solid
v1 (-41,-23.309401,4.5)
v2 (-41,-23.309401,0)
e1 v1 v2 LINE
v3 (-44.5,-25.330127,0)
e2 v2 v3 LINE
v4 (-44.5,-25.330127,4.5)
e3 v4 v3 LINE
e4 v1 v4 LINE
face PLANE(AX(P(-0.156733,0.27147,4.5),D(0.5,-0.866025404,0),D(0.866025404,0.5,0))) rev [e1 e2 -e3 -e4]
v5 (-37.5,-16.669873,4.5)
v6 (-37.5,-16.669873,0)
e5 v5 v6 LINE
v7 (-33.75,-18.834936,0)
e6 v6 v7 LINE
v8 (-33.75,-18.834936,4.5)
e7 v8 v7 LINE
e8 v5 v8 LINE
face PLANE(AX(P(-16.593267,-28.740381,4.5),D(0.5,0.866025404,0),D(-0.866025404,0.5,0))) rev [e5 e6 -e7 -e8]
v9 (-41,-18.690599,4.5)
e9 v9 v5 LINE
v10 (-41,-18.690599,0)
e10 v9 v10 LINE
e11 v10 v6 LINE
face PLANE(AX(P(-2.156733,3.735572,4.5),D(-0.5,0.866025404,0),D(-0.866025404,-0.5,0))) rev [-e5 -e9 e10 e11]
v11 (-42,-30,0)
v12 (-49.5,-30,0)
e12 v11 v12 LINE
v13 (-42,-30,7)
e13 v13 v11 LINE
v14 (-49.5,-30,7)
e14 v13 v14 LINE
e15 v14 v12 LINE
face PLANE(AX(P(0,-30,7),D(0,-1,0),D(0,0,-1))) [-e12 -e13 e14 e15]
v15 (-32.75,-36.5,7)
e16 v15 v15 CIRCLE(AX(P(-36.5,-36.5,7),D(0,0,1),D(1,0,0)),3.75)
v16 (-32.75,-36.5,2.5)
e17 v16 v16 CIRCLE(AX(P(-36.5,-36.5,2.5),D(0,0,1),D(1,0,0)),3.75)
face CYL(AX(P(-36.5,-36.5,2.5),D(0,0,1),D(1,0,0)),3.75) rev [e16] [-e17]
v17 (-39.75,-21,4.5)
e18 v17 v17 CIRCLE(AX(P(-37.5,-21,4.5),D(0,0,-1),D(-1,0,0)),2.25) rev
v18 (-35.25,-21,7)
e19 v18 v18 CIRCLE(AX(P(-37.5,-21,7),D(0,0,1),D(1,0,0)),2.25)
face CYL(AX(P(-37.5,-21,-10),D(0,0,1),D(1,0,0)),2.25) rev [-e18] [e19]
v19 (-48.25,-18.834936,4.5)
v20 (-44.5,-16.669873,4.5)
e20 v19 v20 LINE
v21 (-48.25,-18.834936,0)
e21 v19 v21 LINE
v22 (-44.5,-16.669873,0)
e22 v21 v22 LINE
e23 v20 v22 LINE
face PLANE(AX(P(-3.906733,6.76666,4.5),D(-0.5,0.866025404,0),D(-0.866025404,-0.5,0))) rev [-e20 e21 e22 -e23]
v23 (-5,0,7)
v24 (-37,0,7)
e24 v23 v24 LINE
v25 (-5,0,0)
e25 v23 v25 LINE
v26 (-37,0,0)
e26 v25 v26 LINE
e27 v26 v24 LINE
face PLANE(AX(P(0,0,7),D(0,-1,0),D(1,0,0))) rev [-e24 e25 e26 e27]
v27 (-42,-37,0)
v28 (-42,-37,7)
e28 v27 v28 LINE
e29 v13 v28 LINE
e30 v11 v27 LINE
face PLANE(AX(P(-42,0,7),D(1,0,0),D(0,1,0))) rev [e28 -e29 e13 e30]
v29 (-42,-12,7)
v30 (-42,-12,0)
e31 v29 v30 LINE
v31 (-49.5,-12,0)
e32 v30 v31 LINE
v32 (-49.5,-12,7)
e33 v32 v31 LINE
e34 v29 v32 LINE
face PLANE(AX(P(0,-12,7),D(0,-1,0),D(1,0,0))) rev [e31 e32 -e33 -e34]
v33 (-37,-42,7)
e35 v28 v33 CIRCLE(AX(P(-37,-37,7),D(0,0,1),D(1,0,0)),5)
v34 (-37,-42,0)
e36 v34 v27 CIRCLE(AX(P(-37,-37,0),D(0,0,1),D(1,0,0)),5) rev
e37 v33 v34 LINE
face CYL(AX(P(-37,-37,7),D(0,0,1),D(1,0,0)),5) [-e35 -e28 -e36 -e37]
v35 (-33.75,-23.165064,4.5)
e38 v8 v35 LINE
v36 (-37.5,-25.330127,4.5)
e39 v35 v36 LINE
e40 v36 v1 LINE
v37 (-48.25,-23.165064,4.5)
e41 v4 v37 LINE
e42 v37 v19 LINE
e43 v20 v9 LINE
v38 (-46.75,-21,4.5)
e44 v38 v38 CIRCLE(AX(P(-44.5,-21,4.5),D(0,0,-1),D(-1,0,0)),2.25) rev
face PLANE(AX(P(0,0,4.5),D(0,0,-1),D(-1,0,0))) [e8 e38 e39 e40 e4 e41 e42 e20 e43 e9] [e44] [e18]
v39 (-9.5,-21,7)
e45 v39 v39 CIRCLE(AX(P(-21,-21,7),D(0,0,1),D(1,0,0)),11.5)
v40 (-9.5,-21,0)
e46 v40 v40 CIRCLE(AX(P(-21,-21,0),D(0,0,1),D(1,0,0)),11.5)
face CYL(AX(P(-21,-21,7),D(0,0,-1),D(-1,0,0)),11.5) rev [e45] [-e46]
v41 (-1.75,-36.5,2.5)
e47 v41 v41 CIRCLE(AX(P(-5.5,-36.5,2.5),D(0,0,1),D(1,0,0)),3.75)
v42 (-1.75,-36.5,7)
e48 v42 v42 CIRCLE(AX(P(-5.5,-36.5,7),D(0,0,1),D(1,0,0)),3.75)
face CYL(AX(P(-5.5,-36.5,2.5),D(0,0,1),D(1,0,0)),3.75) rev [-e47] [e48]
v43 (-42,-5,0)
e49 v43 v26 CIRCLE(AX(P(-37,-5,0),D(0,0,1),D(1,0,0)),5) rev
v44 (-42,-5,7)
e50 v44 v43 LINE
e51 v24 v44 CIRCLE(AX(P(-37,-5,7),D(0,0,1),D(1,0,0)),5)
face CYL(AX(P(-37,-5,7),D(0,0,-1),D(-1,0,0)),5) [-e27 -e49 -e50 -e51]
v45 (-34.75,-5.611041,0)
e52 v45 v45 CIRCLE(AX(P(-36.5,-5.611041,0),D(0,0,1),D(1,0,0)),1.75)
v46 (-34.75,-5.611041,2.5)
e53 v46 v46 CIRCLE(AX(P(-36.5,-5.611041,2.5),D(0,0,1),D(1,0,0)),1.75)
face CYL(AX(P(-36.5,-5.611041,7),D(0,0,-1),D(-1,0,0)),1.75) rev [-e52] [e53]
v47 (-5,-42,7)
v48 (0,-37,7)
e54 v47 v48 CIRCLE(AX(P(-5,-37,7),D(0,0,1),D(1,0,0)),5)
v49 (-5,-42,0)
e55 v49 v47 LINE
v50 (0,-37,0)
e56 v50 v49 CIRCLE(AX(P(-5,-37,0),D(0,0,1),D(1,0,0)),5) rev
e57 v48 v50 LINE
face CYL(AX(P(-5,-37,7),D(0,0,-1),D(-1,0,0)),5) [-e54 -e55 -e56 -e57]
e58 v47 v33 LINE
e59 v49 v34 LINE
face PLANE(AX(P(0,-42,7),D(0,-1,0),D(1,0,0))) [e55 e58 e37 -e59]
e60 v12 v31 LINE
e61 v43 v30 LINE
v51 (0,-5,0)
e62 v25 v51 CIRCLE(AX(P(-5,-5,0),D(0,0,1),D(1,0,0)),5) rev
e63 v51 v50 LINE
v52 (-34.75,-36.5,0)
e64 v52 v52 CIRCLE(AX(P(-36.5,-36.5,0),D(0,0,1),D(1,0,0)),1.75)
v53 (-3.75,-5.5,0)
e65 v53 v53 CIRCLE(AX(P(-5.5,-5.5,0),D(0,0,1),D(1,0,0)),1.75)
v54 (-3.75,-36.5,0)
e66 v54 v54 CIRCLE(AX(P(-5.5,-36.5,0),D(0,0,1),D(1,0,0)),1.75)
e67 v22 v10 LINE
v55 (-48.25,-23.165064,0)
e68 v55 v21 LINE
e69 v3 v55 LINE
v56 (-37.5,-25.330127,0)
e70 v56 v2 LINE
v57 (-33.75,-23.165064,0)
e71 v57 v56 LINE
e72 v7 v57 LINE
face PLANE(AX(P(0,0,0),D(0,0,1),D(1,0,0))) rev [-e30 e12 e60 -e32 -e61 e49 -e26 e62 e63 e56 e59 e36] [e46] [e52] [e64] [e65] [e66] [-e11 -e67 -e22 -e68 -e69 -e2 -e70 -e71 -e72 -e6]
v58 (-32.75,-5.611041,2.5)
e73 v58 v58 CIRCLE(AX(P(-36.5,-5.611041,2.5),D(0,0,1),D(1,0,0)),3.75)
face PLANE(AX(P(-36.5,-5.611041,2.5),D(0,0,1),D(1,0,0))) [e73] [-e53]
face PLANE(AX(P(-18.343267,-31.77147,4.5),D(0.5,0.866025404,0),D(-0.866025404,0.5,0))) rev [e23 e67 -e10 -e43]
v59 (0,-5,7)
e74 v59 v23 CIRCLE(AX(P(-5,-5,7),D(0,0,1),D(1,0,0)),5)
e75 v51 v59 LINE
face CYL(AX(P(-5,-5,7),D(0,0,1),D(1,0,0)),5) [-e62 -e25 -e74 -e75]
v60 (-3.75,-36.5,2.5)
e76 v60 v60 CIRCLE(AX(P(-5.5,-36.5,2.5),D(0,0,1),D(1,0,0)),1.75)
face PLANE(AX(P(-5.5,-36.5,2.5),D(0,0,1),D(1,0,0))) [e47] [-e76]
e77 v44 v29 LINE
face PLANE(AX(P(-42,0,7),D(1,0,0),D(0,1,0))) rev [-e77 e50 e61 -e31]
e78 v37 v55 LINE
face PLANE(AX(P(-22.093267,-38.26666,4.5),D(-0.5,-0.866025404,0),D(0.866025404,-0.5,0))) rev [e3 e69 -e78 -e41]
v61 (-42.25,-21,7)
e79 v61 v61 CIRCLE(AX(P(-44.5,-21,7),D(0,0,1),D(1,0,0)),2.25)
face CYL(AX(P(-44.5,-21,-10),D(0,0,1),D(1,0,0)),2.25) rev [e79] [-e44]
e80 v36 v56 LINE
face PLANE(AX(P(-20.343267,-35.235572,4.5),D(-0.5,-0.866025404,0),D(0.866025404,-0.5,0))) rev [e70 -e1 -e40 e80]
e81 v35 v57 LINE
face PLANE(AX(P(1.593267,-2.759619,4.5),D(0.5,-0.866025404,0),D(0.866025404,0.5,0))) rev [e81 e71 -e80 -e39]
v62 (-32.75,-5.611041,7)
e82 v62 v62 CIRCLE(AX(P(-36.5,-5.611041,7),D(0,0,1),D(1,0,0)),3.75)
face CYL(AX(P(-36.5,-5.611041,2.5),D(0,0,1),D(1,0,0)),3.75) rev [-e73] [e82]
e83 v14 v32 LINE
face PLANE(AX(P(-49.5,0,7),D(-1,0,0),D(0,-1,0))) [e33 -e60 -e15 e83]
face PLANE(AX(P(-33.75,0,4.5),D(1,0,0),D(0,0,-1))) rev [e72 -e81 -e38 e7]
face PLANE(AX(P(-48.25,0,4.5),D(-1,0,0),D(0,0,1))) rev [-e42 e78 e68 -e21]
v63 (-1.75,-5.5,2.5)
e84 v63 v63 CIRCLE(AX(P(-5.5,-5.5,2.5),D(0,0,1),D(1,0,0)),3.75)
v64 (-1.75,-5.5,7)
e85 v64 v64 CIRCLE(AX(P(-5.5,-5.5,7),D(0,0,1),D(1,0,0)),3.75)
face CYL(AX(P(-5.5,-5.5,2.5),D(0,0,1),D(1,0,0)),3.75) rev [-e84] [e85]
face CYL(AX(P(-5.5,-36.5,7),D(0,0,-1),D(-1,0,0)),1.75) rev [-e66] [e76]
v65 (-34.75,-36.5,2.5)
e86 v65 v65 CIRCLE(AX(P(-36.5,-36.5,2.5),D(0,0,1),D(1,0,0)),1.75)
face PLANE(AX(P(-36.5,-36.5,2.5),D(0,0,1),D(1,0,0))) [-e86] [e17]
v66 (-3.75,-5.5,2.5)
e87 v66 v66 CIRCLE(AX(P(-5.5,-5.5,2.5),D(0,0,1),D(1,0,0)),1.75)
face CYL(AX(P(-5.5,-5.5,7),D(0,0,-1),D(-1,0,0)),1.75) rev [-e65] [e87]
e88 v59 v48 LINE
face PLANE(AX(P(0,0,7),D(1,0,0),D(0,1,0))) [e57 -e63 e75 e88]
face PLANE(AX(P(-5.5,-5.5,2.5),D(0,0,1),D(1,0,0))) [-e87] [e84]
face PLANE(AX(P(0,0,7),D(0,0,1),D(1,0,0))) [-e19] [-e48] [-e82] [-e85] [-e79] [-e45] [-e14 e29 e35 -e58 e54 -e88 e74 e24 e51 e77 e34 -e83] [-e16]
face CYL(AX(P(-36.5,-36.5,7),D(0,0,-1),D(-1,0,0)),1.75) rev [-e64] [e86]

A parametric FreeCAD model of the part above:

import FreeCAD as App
import Part
import Sketcher

V = App.Vector
Q = App.Units.Quantity


def edges_at(feature, points):
    """Names of the edges that pass closest to the given points."""
    edges = feature.Shape.Edges
    near = lambda p: min(range(len(edges)), key=lambda i: edges[i].distToShape(Part.Vertex(*p))[0])
    return sorted({f"Edge{near(p) + 1}" for p in points})

doc = App.newDocument("Part")
body = doc.addObject("PartDesign::Body", "Body")

# Sketch on XY plane
sketch1 = body.newObject("Sketcher::SketchObject", "Sketch")
sketch1.AttachmentSupport = (doc.getObject("XY_Plane"), [""])
sketch1.MapMode = "FlatFace"
sketch1.addGeometry(Part.LineSegment(V(-42, -30, 0), V(-42, -42, 0)), False)
sketch1.addGeometry(Part.LineSegment(V(-42, -42, 0), V(0, -42, 0)), False)
sketch1.addGeometry(Part.LineSegment(V(0, -42, 0), V(0, 0, 0)), False)
sketch1.addGeometry(Part.LineSegment(V(0, 0, 0), V(-42, 0, 0)), False)
sketch1.addGeometry(Part.LineSegment(V(-42, 0, 0), V(-42, -12, 0)), False)
sketch1.addGeometry(Part.LineSegment(V(-42, -12, 0), V(-49.5, -12, 0)), False)
sketch1.addGeometry(Part.LineSegment(V(-49.5, -12, 0), V(-49.5, -30, 0)), False)
sketch1.addGeometry(Part.LineSegment(V(-49.5, -30, 0), V(-42, -30, 0)), False)
sketch1.addGeometry(Part.Circle(V(-36.5, -36.5, 0), V(0, 0, 1), 1.75), False)
sketch1.addGeometry(Part.Circle(V(-5.5, -36.5, 0), V(0, 0, 1), 1.75), False)
sketch1.addGeometry(Part.Circle(V(-36.5, -5.611041, 0), V(0, 0, 1), 1.75), False)
sketch1.addGeometry(Part.Circle(V(-21, -21, 0), V(0, 0, 1), 11.5), False)
sketch1.addGeometry(Part.Circle(V(-5.5, -5.5, 0), V(0, 0, 1), 1.75), False)
sketch1.addConstraint(Sketcher.Constraint("Coincident", 0, 2, 1, 1))
sketch1.addConstraint(Sketcher.Constraint("Coincident", 1, 2, 2, 1))
sketch1.addConstraint(Sketcher.Constraint("Coincident", 2, 2, 3, 1))
sketch1.addConstraint(Sketcher.Constraint("Coincident", 3, 2, 4, 1))
sketch1.addConstraint(Sketcher.Constraint("Coincident", 4, 2, 5, 1))
sketch1.addConstraint(Sketcher.Constraint("Coincident", 5, 2, 6, 1))
sketch1.addConstraint(Sketcher.Constraint("Coincident", 6, 2, 7, 1))
sketch1.addConstraint(Sketcher.Constraint("Coincident", 7, 2, 0, 1))
sketch1.addConstraint(Sketcher.Constraint("Vertical", 0))
sketch1.addConstraint(Sketcher.Constraint("Horizontal", 1))
sketch1.addConstraint(Sketcher.Constraint("Vertical", 2))
sketch1.addConstraint(Sketcher.Constraint("Horizontal", 3))
sketch1.addConstraint(Sketcher.Constraint("Vertical", 4))
sketch1.addConstraint(Sketcher.Constraint("Horizontal", 5))
sketch1.addConstraint(Sketcher.Constraint("Vertical", 6))
sketch1.addConstraint(Sketcher.Constraint("Horizontal", 7))
sketch1.addConstraint(Sketcher.Constraint("Coincident", 2, 2, -1, 1))
sketch1.addConstraint(Sketcher.Constraint("Equal", 8, 9))
sketch1.addConstraint(Sketcher.Constraint("Equal", 9, 10))
sketch1.addConstraint(Sketcher.Constraint("Equal", 10, 12))
sketch1.addConstraint(Sketcher.Constraint("Horizontal", 8, 3, 9, 3))
sketch1.addConstraint(Sketcher.Constraint("Vertical", 8, 3, 10, 3))
sketch1.addConstraint(Sketcher.Constraint("Vertical", 9, 3, 12, 3))
sketch1.addConstraint(Sketcher.Constraint("Vertical", 0, 2, 3, 2))
sketch1.addConstraint(Sketcher.Constraint("Equal", 3, 2))
sketch1.addConstraint(Sketcher.Constraint("Equal", 0, 4))
sketch1.addConstraint(Sketcher.Constraint("Diameter", 11, Q("23 mm")))
sketch1.addConstraint(Sketcher.Constraint("Diameter", 8, Q("3.5 mm")))
sketch1.addConstraint(Sketcher.Constraint("DistanceX", 1, 1, 1, 2, Q("42 mm")))
sketch1.addConstraint(Sketcher.Constraint("DistanceY", 0, 2, 0, 1, Q("12 mm")))
sketch1.addConstraint(Sketcher.Constraint("DistanceX", 5, 2, 5, 1, Q("7.5 mm")))
sketch1.addConstraint(Sketcher.Constraint("DistanceX", 11, 3, -1, 1, Q("21 mm")))
sketch1.addConstraint(Sketcher.Constraint("DistanceY", 11, 3, -1, 1, Q("21 mm")))
sketch1.addConstraint(Sketcher.Constraint("DistanceX", 8, 3, 9, 3, Q("31 mm")))
sketch1.addConstraint(Sketcher.Constraint("DistanceY", 9, 3, 12, 3, Q("31 mm")))
sketch1.addConstraint(Sketcher.Constraint("DistanceX", 5, 2, 10, 3, Q("13 mm")))
sketch1.addConstraint(Sketcher.Constraint("DistanceY", 8, 3, -1, 1, Q("36.5 mm")))
sketch1.addConstraint(Sketcher.Constraint("DistanceY", 10, 3, -1, 1, Q("5.611041 mm")))
pad1 = body.newObject("PartDesign::Pad", "Pad")
pad1.Profile = sketch1
pad1.Length = 7

# Sketch on XY plane
sketch2 = body.newObject("Sketcher::SketchObject", "Sketch001")
sketch2.AttachmentSupport = (doc.getObject("XY_Plane"), [""])
sketch2.MapMode = "FlatFace"
sketch2.AttachmentOffset = App.Placement(V(0, 0, 7), App.Rotation())
sketch2.addGeometry(Part.Circle(V(-44.5, -21, 0), V(0, 0, 1), 2.25), False)
sketch2.addGeometry(Part.Circle(V(-37.5, -21, 0), V(0, 0, 1), 2.25), False)
sketch2.addConstraint(Sketcher.Constraint("Equal", 0, 1))
sketch2.addConstraint(Sketcher.Constraint("Horizontal", 0, 3, 1, 3))
sketch2.addConstraint(Sketcher.Constraint("Diameter", 0, Q("4.5 mm")))
sketch2.addConstraint(Sketcher.Constraint("DistanceY", 0, 3, -1, 1, Q("21 mm")))
sketch2.addConstraint(Sketcher.Constraint("DistanceX", 0, 3, 1, 3, Q("7 mm")))
sketch2.addConstraint(Sketcher.Constraint("DistanceX", 0, 3, -1, 1, Q("44.5 mm")))
pocket1 = body.newObject("PartDesign::Pocket", "Pocket")
pocket1.Profile = sketch2
pocket1.Length = 17

# Sketch on XY plane
sketch3 = body.newObject("Sketcher::SketchObject", "Sketch002")
sketch3.AttachmentSupport = (doc.getObject("XY_Plane"), [""])
sketch3.MapMode = "FlatFace"
sketch3.addGeometry(Part.LineSegment(V(-41, -23.309401, 0), V(-44.5, -25.330127, 0)), False)
sketch3.addGeometry(Part.LineSegment(V(-44.5, -25.330127, 0), V(-48.25, -23.165064, 0)), False)
sketch3.addGeometry(Part.LineSegment(V(-48.25, -23.165064, 0), V(-48.25, -18.834936, 0)), False)
sketch3.addGeometry(Part.LineSegment(V(-48.25, -18.834936, 0), V(-44.5, -16.669873, 0)), False)
sketch3.addGeometry(Part.LineSegment(V(-44.5, -16.669873, 0), V(-41, -18.690599, 0)), False)
sketch3.addGeometry(Part.LineSegment(V(-41, -18.690599, 0), V(-37.5, -16.669873, 0)), False)
sketch3.addGeometry(Part.LineSegment(V(-37.5, -16.669873, 0), V(-33.75, -18.834936, 0)), False)
sketch3.addGeometry(Part.LineSegment(V(-33.75, -18.834936, 0), V(-33.75, -23.165064, 0)), False)
sketch3.addGeometry(Part.LineSegment(V(-33.75, -23.165064, 0), V(-37.5, -25.330127, 0)), False)
sketch3.addGeometry(Part.LineSegment(V(-37.5, -25.330127, 0), V(-41, -23.309401, 0)), False)
sketch3.addConstraint(Sketcher.Constraint("Coincident", 0, 2, 1, 1))
sketch3.addConstraint(Sketcher.Constraint("Coincident", 1, 2, 2, 1))
sketch3.addConstraint(Sketcher.Constraint("Coincident", 2, 2, 3, 1))
sketch3.addConstraint(Sketcher.Constraint("Coincident", 3, 2, 4, 1))
sketch3.addConstraint(Sketcher.Constraint("Coincident", 4, 2, 5, 1))
sketch3.addConstraint(Sketcher.Constraint("Coincident", 5, 2, 6, 1))
sketch3.addConstraint(Sketcher.Constraint("Coincident", 6, 2, 7, 1))
sketch3.addConstraint(Sketcher.Constraint("Coincident", 7, 2, 8, 1))
sketch3.addConstraint(Sketcher.Constraint("Coincident", 8, 2, 9, 1))
sketch3.addConstraint(Sketcher.Constraint("Coincident", 9, 2, 0, 1))
sketch3.addConstraint(Sketcher.Constraint("Vertical", 2))
sketch3.addConstraint(Sketcher.Constraint("Vertical", 7))
sketch3.addConstraint(Sketcher.Constraint("Parallel", 0, 3))
sketch3.addConstraint(Sketcher.Constraint("Parallel", 1, 4))
sketch3.addConstraint(Sketcher.Constraint("Parallel", 3, 5))
sketch3.addConstraint(Sketcher.Constraint("Parallel", 4, 6))
sketch3.addConstraint(Sketcher.Constraint("Parallel", 5, 8))
sketch3.addConstraint(Sketcher.Constraint("Parallel", 6, 9))
sketch3.addConstraint(Sketcher.Constraint("Horizontal", 3, 2, 5, 2))
sketch3.addConstraint(Sketcher.Constraint("Horizontal", 2, 2, 6, 2))
sketch3.addConstraint(Sketcher.Constraint("Horizontal", 1, 2, 7, 2))
sketch3.addConstraint(Sketcher.Constraint("Horizontal", 0, 2, 8, 2))
sketch3.addConstraint(Sketcher.Constraint("Vertical", 0, 2, 3, 2))
sketch3.addConstraint(Sketcher.Constraint("Vertical", 5, 2, 8, 2))
sketch3.addConstraint(Sketcher.Constraint("Angle", 0, Q("-150 deg")))
sketch3.addConstraint(Sketcher.Constraint("DistanceX", 4, 2, -1, 1, Q("41 mm")))
sketch3.addConstraint(Sketcher.Constraint("DistanceX", 3, 2, 5, 2, Q("7 mm")))
sketch3.addConstraint(Sketcher.Constraint("DistanceX", 2, 2, 6, 2, Q("14.5 mm")))
sketch3.addConstraint(Sketcher.Constraint("DistanceY", 4, 2, -1, 1, Q("18.690599 mm")))
sketch3.addConstraint(Sketcher.Constraint("DistanceY", 9, 2, -1, 1, Q("23.309401 mm")))
pocket2 = body.newObject("PartDesign::Pocket", "Pocket001")
pocket2.Profile = sketch3
pocket2.Length = 4.5
pocket2.Reversed = True

# Sketch on XY plane
sketch4 = body.newObject("Sketcher::SketchObject", "Sketch003")
sketch4.AttachmentSupport = (doc.getObject("XY_Plane"), [""])
sketch4.MapMode = "FlatFace"
sketch4.AttachmentOffset = App.Placement(V(0, 0, 7), App.Rotation())
sketch4.addGeometry(Part.Circle(V(-36.5, -5.611041, 0), V(0, 0, 1), 3.75), False)
sketch4.addGeometry(Part.Circle(V(-5.5, -5.5, 0), V(0, 0, 1), 3.75), False)
sketch4.addGeometry(Part.Circle(V(-5.5, -36.5, 0), V(0, 0, 1), 3.75), False)
sketch4.addGeometry(Part.Circle(V(-36.5, -36.5, 0), V(0, 0, 1), 3.75), False)
sketch4.addConstraint(Sketcher.Constraint("Equal", 0, 1))
sketch4.addConstraint(Sketcher.Constraint("Equal", 1, 2))
sketch4.addConstraint(Sketcher.Constraint("Equal", 2, 3))
sketch4.addConstraint(Sketcher.Constraint("Horizontal", 2, 3, 3, 3))
sketch4.addConstraint(Sketcher.Constraint("Vertical", 1, 3, 2, 3))
sketch4.addConstraint(Sketcher.Constraint("Vertical", 0, 3, 3, 3))
sketch4.addConstraint(Sketcher.Constraint("Diameter", 0, Q("7.5 mm")))
sketch4.addConstraint(Sketcher.Constraint("DistanceX", 0, 3, 1, 3, Q("31 mm")))
sketch4.addConstraint(Sketcher.Constraint("DistanceY", 2, 3, 1, 3, Q("31 mm")))
sketch4.addConstraint(Sketcher.Constraint("DistanceX", 0, 3, -1, 1, Q("36.5 mm")))
sketch4.addConstraint(Sketcher.Constraint("DistanceY", 1, 3, -1, 1, Q("5.5 mm")))
sketch4.addConstraint(Sketcher.Constraint("DistanceY", 0, 3, -1, 1, Q("5.611041 mm")))
pocket3 = body.newObject("PartDesign::Pocket", "Pocket002")
pocket3.Profile = sketch4
pocket3.Length = 4.5
doc.recompute()

fillet = body.newObject("PartDesign::Fillet", "Fillet")
fillet.Base = (pocket3, edges_at(pocket3, [
    (0, 0, 3.5),
    (0, -42, 3.5),
    (-42, -42, 3.5),
    (-42, 0, 3.5),
]))
fillet.Radius = 5

doc.recompute()
